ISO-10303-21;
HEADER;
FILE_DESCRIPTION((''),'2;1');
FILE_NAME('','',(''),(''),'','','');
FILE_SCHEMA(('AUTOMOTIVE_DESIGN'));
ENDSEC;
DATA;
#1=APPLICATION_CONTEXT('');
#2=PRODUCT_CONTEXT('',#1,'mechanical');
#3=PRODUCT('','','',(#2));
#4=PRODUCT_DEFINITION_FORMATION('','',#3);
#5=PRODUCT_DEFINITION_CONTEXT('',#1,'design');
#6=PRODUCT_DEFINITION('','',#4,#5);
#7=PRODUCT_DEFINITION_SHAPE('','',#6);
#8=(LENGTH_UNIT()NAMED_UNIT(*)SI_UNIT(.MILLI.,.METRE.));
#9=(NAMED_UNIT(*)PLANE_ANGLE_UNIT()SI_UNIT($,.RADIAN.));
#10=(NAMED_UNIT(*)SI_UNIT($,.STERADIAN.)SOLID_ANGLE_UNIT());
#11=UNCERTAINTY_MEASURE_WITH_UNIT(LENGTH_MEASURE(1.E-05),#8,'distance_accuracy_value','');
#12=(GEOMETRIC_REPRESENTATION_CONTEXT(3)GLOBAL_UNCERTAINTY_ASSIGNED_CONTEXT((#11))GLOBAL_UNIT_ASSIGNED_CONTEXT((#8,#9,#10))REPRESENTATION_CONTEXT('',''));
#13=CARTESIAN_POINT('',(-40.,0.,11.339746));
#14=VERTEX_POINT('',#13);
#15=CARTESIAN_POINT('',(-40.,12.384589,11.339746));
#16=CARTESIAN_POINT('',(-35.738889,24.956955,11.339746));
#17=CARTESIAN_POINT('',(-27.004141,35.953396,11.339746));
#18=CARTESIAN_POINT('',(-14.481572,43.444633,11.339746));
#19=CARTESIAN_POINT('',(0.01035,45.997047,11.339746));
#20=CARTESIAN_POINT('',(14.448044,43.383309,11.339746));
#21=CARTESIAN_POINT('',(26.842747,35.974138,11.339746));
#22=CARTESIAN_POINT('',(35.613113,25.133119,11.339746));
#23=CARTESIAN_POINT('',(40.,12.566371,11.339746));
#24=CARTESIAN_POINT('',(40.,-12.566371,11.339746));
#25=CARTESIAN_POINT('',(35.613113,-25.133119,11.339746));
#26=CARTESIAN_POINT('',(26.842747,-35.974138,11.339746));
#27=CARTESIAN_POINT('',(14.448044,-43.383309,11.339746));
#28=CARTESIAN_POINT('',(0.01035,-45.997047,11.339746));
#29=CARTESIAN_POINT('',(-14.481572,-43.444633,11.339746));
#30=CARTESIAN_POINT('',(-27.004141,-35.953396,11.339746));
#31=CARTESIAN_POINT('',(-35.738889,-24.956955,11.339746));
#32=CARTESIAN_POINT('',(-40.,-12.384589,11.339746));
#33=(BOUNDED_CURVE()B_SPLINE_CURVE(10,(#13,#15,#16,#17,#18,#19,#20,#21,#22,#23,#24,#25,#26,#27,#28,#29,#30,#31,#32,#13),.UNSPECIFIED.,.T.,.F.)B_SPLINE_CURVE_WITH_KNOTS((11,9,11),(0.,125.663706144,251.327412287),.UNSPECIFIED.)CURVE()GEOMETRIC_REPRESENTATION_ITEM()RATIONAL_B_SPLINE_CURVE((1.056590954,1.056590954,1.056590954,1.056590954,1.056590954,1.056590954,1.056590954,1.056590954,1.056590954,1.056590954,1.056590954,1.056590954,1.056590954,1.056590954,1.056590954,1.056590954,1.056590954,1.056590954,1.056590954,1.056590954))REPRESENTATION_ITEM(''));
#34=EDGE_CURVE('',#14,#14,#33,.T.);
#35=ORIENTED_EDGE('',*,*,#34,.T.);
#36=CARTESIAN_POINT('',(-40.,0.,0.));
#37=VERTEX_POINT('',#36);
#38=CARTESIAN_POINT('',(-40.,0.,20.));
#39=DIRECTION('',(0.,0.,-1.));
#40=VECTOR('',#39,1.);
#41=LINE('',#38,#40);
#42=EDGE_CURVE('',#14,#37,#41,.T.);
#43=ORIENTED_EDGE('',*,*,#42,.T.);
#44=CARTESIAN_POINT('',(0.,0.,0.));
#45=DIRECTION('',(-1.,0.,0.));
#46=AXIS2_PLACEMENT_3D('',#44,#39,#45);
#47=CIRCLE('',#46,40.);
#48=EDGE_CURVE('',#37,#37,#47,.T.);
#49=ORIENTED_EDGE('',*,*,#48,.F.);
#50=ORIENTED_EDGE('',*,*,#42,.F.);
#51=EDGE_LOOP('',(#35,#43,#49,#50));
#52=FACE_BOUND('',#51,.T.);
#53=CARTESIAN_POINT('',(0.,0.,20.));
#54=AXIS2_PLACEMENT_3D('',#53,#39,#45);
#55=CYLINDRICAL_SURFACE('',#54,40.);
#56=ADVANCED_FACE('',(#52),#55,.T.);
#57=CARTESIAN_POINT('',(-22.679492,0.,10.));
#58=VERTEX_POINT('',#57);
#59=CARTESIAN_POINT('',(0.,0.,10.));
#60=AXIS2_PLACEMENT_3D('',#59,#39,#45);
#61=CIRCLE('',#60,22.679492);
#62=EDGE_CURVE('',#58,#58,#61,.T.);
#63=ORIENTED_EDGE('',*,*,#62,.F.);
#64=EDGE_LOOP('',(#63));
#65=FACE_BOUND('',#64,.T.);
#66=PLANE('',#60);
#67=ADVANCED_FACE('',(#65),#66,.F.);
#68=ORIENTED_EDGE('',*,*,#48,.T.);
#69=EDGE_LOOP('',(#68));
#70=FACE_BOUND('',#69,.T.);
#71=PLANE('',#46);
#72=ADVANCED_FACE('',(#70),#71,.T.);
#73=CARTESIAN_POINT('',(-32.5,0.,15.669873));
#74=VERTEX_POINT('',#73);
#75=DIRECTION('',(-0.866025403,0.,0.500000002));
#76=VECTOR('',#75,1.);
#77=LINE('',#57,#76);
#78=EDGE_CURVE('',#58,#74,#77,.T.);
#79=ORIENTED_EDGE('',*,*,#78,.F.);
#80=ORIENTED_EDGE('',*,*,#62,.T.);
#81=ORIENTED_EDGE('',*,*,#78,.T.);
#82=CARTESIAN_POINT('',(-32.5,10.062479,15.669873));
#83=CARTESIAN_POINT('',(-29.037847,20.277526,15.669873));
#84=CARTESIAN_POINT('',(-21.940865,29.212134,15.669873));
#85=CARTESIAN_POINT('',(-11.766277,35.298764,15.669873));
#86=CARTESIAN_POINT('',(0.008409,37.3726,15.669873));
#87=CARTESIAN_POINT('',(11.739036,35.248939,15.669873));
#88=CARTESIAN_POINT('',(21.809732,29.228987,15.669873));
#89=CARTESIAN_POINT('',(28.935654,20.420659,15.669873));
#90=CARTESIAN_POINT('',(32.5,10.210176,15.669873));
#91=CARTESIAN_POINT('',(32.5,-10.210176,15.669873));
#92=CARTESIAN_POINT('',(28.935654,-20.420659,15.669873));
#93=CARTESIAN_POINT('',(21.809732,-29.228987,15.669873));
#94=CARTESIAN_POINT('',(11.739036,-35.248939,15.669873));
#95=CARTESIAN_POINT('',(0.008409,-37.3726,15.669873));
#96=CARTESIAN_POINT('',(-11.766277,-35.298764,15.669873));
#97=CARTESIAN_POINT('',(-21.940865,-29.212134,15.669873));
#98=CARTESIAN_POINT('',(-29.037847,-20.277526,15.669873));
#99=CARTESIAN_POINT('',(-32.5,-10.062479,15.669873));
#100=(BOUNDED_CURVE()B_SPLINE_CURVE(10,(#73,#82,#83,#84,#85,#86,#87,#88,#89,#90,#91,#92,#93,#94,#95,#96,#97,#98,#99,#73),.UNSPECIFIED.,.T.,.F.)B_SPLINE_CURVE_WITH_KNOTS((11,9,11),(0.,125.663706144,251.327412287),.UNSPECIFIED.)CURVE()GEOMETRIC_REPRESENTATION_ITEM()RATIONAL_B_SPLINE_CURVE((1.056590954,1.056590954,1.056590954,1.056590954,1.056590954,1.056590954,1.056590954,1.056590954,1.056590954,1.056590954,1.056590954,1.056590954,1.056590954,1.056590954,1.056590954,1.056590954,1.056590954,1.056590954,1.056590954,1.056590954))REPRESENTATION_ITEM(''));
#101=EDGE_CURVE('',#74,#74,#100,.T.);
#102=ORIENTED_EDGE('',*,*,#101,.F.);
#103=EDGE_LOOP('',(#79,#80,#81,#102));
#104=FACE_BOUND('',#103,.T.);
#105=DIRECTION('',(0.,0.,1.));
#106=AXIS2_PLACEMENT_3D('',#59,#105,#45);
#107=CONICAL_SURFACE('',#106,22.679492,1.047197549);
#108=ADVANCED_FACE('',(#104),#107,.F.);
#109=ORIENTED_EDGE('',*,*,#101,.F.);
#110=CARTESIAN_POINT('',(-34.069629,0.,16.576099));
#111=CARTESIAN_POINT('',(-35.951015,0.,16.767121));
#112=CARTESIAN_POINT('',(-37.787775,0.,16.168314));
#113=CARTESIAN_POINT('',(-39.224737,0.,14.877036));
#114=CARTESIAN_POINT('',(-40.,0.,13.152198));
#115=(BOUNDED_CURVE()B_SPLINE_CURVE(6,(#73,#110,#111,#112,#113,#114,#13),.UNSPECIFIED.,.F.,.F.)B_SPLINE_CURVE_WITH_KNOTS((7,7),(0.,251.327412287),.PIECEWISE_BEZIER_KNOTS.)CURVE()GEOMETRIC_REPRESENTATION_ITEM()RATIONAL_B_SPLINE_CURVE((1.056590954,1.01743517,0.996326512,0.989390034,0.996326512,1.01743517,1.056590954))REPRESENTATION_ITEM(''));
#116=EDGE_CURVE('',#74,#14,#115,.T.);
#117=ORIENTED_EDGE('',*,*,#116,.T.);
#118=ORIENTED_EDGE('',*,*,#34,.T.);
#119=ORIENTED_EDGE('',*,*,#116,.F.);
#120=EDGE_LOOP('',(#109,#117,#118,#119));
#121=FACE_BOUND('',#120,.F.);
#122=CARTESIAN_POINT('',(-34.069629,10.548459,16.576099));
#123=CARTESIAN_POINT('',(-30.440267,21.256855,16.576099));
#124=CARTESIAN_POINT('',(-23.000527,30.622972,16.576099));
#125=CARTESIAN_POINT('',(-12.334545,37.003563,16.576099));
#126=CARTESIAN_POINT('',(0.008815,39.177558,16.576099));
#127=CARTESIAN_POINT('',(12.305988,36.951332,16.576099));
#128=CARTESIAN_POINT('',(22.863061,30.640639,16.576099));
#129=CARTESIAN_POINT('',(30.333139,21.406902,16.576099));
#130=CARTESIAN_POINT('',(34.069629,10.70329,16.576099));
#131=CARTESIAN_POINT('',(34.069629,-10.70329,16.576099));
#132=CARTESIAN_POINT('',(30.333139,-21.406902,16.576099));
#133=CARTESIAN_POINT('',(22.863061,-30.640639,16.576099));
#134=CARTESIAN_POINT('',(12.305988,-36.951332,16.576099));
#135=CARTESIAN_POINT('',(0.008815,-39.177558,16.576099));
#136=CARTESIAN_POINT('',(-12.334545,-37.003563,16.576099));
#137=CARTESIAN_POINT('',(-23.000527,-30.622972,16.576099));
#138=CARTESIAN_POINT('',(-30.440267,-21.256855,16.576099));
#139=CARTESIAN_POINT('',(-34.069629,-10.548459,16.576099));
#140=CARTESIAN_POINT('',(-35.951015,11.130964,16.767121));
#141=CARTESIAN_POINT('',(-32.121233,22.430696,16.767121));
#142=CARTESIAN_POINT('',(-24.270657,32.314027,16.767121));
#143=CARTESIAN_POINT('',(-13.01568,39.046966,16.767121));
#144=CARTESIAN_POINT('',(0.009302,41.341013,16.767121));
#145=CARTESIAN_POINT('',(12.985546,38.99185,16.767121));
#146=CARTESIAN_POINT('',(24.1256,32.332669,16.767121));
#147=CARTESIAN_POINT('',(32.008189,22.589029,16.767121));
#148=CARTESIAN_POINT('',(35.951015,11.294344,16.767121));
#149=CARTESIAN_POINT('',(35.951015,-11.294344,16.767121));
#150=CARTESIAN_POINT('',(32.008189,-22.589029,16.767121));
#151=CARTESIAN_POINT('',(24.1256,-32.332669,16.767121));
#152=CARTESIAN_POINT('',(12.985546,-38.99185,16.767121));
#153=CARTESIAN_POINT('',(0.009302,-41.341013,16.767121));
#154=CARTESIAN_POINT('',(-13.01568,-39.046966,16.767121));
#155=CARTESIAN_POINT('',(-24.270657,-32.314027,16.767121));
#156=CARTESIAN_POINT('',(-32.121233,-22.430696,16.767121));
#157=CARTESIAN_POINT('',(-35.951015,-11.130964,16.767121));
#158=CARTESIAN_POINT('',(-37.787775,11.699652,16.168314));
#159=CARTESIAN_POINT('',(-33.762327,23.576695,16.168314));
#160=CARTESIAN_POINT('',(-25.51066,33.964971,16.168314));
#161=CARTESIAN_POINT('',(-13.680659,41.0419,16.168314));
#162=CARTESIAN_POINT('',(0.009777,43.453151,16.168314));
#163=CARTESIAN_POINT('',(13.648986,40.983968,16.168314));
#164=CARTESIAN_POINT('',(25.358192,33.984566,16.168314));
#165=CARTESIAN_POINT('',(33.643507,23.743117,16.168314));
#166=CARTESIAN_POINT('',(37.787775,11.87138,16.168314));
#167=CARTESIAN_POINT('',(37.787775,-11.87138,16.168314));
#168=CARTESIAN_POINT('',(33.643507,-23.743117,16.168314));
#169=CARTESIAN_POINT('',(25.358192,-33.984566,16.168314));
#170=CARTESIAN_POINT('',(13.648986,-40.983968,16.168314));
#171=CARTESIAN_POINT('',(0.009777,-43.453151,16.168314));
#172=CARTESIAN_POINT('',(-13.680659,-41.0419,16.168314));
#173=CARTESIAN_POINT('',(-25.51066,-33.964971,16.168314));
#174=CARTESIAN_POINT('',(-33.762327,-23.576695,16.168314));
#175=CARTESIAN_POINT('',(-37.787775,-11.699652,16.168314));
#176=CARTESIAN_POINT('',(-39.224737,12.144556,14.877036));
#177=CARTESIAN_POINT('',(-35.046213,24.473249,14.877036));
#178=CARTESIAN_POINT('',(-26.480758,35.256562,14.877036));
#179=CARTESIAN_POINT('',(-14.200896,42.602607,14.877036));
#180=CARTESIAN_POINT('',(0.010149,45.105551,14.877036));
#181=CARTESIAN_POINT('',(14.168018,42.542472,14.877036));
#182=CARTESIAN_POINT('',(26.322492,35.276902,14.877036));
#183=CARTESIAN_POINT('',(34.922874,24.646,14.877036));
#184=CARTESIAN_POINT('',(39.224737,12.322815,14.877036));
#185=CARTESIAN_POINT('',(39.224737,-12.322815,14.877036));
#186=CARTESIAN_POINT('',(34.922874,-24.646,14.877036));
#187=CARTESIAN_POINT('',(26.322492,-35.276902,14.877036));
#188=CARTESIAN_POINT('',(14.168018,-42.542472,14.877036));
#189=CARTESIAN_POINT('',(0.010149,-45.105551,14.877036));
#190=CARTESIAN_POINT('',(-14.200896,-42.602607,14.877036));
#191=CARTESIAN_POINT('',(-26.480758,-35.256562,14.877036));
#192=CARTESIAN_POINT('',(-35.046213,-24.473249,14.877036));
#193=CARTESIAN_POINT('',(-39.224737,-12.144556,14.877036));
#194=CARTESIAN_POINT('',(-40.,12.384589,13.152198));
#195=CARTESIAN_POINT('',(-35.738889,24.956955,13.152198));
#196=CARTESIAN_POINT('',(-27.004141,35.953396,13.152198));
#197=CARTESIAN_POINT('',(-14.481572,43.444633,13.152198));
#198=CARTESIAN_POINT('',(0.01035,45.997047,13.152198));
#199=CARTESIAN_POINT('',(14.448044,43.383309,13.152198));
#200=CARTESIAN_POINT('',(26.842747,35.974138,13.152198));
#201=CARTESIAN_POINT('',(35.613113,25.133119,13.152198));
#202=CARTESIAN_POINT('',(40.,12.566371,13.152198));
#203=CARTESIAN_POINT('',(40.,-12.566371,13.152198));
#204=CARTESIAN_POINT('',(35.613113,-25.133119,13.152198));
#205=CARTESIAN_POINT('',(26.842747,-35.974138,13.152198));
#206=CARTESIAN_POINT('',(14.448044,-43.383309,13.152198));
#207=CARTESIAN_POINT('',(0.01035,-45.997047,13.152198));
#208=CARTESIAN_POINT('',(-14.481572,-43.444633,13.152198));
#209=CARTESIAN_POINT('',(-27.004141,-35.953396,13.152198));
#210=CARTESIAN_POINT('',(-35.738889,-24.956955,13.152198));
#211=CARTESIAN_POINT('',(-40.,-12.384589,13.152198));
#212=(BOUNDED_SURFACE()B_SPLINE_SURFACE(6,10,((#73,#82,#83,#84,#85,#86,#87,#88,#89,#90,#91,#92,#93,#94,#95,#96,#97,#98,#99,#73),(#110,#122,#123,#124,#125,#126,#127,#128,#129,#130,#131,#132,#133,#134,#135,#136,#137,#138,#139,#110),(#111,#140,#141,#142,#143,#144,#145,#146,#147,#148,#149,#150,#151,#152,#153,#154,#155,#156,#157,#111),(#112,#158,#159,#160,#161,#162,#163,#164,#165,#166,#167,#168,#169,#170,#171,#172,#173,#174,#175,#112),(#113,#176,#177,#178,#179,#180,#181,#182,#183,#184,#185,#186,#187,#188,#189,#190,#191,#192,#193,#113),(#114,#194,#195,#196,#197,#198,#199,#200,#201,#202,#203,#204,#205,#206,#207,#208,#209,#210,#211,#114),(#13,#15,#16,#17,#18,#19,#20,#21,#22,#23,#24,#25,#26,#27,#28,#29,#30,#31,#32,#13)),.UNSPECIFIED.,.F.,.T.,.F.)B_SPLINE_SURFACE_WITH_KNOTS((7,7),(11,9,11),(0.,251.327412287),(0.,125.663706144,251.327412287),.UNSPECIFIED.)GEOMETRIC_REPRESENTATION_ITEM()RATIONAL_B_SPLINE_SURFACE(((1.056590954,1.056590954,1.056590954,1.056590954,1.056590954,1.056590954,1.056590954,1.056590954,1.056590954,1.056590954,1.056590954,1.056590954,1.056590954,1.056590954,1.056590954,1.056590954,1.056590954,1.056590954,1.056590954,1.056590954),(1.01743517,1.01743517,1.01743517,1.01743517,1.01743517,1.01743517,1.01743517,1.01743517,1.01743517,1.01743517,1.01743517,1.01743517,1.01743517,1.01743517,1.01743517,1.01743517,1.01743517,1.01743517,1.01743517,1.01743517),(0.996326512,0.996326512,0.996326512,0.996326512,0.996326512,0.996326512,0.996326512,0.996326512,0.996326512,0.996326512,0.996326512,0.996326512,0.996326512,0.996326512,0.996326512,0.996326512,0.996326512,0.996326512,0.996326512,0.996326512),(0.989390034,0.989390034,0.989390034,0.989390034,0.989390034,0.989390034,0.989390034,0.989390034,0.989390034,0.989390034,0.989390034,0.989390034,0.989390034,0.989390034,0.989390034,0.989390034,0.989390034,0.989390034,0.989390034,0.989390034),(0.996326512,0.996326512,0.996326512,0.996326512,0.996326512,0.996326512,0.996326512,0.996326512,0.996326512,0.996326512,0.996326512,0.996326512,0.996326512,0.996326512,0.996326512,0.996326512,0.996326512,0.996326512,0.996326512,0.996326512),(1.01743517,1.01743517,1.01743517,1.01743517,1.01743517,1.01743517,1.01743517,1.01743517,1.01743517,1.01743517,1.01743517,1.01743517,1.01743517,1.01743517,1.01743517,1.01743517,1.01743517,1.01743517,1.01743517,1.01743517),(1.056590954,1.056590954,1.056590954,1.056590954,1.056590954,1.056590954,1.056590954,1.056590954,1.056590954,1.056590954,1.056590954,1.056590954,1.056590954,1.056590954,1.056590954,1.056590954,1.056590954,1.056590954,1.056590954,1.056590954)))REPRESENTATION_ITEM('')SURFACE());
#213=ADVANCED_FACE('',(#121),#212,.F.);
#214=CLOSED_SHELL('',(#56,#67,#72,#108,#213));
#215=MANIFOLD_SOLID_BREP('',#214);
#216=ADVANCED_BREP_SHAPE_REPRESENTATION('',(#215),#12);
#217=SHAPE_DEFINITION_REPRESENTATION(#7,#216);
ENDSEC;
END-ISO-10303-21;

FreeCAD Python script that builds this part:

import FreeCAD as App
import Part
import Sketcher
from FreeCAD import Vector
Q = App.Units.Quantity


def edges_at(feature, points):
    """Names of the edges that pass closest to the given points."""
    edges = feature.Shape.Edges
    near = lambda p: min(range(len(edges)), key=lambda i: edges[i].distToShape(Part.Vertex(*p))[0])
    return sorted({f"Edge{near(p) + 1}" for p in points})

doc = App.newDocument("Part")
params = doc.addObject("Spreadsheet::Sheet", "Params")
for row, (alias, value) in enumerate([
    ("sketch1_width", "40 mm"),
    ("sketch1_height", "10 mm"),
    ("sketch1_height2", "20 mm"),
    ("revolution_angle", "360 deg"),
    ("fillet_radius", "5 mm"),
], start=1):
    params.set(f"A{row}", alias)
    params.set(f"B{row}", "=" + value)
    params.setAlias(f"B{row}", alias)

body = doc.addObject("PartDesign::Body", "Body")

# Sketch on XZ plane
sketch1 = body.newObject("Sketcher::SketchObject", "Sketch")
sketch1.AttachmentSupport = (doc.getObject("XZ_Plane"), [""])
sketch1.MapMode = "FlatFace"
sketch1.addGeometry([
    Part.LineSegment(Vector(-40, 0, 0), Vector(0, 0, 0)),  # 0
    Part.LineSegment(Vector(0, 0, 0), Vector(0, 10, 0)),  # 1
    Part.LineSegment(Vector(0, 10, 0), Vector(-23, 10, 0)),  # 2
    Part.LineSegment(Vector(-23, 10, 0), Vector(-40, 20, 0)),  # 3
    Part.LineSegment(Vector(-40, 20, 0), Vector(-40, 0, 0)),  # 4
], False)
sketch1.addConstraint([
    Sketcher.Constraint("Coincident", 0, 2, 1, 1),
    Sketcher.Constraint("Coincident", 1, 2, 2, 1),
    Sketcher.Constraint("Coincident", 2, 2, 3, 1),
    Sketcher.Constraint("Coincident", 3, 2, 4, 1),
    Sketcher.Constraint("Coincident", 4, 2, 0, 1),
    Sketcher.Constraint("Horizontal", 0),
    Sketcher.Constraint("Vertical", 1),
    Sketcher.Constraint("Horizontal", 2),
    Sketcher.Constraint("Vertical", 4),
    Sketcher.Constraint("Coincident", 0, 2, -1, 1),
    Sketcher.Constraint("DistanceX", 0, 1, 0, 2, Q("40 mm")),
    Sketcher.Constraint("DistanceY", 1, 1, 1, 2, Q("10 mm")),
    Sketcher.Constraint("DistanceY", 4, 2, 4, 1, Q("20 mm")),
    Sketcher.Constraint("Angle", 3, Q("150 deg")),
])
sketch1.setExpression("Constraints[10]", "Params.sketch1_width")
sketch1.setExpression("Constraints[11]", "Params.sketch1_height")
sketch1.setExpression("Constraints[12]", "Params.sketch1_height2")
revolution = body.newObject("PartDesign::Revolution", "Revolution")
revolution.Profile = sketch1
revolution.ReferenceAxis = (sketch1, ["V_Axis"])
revolution.setExpression("Angle", "Params.revolution_angle")
doc.recompute()

fillet = body.newObject("PartDesign::Fillet", "Fillet")
fillet.Base = (revolution, edges_at(revolution, [(40, 0, 20)]))
fillet.setExpression("Radius", "Params.fillet_radius")

doc.recompute()
